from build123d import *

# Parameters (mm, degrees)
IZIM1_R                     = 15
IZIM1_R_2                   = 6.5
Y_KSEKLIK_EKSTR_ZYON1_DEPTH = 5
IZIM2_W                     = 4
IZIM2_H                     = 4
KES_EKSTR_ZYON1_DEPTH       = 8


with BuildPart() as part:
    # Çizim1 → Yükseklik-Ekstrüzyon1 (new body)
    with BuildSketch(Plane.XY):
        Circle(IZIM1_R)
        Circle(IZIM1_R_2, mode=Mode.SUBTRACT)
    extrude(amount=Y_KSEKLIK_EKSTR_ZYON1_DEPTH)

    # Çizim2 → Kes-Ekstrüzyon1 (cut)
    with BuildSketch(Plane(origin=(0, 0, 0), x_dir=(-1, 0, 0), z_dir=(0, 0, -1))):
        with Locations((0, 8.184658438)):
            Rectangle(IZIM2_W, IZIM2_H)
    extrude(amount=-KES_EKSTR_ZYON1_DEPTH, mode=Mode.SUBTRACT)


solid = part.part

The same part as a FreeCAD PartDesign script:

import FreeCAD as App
import Part
import Sketcher
from FreeCAD import Vector
Q = App.Units.Quantity

doc = App.newDocument("Part")
body = doc.addObject("PartDesign::Body", "Body")

sketch1 = body.newObject("Sketcher::SketchObject", "Sketch")
sketch1.AttachmentSupport = (doc.getObject("XY_Plane"), [""])
sketch1.MapMode = "FlatFace"
sketch1.addGeometry([
    Part.Circle(Vector(0, 0, 0), Vector(0, 0, 1), 15),
    Part.Circle(Vector(0, 0, 0), Vector(0, 0, 1), 6),
], False)
sketch1.addConstraint([
    Sketcher.Constraint("Coincident", 0, 3, -1, 1),
    Sketcher.Constraint("Coincident", 1, 3, -1, 1),
    Sketcher.Constraint("Diameter", 0, Q("30 mm")),
    Sketcher.Constraint("Diameter", 1, Q("13 mm")),
])
pad1 = body.newObject("PartDesign::Pad", "Pad")
pad1.Profile = sketch1
pad1.Length = 5

sketch2 = body.newObject("Sketcher::SketchObject", "Sketch001")
sketch2.AttachmentSupport = (doc.getObject("XY_Plane"), [""])
sketch2.MapMode = "FlatFace"
sketch2.addGeometry([
    Part.LineSegment(Vector(2, 10.2, 0), Vector(2, 6.2, 0)),
    Part.LineSegment(Vector(2, 6.2, 0), Vector(-2, 6.2, 0)),
    Part.LineSegment(Vector(-2, 6.2, 0), Vector(-2, 10.2, 0)),
    Part.LineSegment(Vector(-2, 10.2, 0), Vector(2, 10.2, 0)),
], False)
sketch2.addConstraint([
    Sketcher.Constraint("Coincident", 0, 2, 1, 1),
    Sketcher.Constraint("Coincident", 1, 2, 2, 1),
    Sketcher.Constraint("Coincident", 2, 2, 3, 1),
    Sketcher.Constraint("Coincident", 3, 2, 0, 1),
    Sketcher.Constraint("Vertical", 0),
    Sketcher.Constraint("Horizontal", 1),
    Sketcher.Constraint("Vertical", 2),
    Sketcher.Constraint("Horizontal", 3),
    Sketcher.Constraint("Equal", 3, 0),
    Sketcher.Constraint("DistanceX", 1, 2, 1, 1, Q("4 mm")),
    Sketcher.Constraint("DistanceX", -1, 1, 0, 2, Q("2 mm")),
    Sketcher.Constraint("DistanceY", -1, 1, 0, 2, Q("6.184658 mm")),
])
pocket1 = body.newObject("PartDesign::Pocket", "Pocket")
pocket1.Profile = sketch2
pocket1.Length = 8
pocket1.Reversed = True

doc.recompute()
